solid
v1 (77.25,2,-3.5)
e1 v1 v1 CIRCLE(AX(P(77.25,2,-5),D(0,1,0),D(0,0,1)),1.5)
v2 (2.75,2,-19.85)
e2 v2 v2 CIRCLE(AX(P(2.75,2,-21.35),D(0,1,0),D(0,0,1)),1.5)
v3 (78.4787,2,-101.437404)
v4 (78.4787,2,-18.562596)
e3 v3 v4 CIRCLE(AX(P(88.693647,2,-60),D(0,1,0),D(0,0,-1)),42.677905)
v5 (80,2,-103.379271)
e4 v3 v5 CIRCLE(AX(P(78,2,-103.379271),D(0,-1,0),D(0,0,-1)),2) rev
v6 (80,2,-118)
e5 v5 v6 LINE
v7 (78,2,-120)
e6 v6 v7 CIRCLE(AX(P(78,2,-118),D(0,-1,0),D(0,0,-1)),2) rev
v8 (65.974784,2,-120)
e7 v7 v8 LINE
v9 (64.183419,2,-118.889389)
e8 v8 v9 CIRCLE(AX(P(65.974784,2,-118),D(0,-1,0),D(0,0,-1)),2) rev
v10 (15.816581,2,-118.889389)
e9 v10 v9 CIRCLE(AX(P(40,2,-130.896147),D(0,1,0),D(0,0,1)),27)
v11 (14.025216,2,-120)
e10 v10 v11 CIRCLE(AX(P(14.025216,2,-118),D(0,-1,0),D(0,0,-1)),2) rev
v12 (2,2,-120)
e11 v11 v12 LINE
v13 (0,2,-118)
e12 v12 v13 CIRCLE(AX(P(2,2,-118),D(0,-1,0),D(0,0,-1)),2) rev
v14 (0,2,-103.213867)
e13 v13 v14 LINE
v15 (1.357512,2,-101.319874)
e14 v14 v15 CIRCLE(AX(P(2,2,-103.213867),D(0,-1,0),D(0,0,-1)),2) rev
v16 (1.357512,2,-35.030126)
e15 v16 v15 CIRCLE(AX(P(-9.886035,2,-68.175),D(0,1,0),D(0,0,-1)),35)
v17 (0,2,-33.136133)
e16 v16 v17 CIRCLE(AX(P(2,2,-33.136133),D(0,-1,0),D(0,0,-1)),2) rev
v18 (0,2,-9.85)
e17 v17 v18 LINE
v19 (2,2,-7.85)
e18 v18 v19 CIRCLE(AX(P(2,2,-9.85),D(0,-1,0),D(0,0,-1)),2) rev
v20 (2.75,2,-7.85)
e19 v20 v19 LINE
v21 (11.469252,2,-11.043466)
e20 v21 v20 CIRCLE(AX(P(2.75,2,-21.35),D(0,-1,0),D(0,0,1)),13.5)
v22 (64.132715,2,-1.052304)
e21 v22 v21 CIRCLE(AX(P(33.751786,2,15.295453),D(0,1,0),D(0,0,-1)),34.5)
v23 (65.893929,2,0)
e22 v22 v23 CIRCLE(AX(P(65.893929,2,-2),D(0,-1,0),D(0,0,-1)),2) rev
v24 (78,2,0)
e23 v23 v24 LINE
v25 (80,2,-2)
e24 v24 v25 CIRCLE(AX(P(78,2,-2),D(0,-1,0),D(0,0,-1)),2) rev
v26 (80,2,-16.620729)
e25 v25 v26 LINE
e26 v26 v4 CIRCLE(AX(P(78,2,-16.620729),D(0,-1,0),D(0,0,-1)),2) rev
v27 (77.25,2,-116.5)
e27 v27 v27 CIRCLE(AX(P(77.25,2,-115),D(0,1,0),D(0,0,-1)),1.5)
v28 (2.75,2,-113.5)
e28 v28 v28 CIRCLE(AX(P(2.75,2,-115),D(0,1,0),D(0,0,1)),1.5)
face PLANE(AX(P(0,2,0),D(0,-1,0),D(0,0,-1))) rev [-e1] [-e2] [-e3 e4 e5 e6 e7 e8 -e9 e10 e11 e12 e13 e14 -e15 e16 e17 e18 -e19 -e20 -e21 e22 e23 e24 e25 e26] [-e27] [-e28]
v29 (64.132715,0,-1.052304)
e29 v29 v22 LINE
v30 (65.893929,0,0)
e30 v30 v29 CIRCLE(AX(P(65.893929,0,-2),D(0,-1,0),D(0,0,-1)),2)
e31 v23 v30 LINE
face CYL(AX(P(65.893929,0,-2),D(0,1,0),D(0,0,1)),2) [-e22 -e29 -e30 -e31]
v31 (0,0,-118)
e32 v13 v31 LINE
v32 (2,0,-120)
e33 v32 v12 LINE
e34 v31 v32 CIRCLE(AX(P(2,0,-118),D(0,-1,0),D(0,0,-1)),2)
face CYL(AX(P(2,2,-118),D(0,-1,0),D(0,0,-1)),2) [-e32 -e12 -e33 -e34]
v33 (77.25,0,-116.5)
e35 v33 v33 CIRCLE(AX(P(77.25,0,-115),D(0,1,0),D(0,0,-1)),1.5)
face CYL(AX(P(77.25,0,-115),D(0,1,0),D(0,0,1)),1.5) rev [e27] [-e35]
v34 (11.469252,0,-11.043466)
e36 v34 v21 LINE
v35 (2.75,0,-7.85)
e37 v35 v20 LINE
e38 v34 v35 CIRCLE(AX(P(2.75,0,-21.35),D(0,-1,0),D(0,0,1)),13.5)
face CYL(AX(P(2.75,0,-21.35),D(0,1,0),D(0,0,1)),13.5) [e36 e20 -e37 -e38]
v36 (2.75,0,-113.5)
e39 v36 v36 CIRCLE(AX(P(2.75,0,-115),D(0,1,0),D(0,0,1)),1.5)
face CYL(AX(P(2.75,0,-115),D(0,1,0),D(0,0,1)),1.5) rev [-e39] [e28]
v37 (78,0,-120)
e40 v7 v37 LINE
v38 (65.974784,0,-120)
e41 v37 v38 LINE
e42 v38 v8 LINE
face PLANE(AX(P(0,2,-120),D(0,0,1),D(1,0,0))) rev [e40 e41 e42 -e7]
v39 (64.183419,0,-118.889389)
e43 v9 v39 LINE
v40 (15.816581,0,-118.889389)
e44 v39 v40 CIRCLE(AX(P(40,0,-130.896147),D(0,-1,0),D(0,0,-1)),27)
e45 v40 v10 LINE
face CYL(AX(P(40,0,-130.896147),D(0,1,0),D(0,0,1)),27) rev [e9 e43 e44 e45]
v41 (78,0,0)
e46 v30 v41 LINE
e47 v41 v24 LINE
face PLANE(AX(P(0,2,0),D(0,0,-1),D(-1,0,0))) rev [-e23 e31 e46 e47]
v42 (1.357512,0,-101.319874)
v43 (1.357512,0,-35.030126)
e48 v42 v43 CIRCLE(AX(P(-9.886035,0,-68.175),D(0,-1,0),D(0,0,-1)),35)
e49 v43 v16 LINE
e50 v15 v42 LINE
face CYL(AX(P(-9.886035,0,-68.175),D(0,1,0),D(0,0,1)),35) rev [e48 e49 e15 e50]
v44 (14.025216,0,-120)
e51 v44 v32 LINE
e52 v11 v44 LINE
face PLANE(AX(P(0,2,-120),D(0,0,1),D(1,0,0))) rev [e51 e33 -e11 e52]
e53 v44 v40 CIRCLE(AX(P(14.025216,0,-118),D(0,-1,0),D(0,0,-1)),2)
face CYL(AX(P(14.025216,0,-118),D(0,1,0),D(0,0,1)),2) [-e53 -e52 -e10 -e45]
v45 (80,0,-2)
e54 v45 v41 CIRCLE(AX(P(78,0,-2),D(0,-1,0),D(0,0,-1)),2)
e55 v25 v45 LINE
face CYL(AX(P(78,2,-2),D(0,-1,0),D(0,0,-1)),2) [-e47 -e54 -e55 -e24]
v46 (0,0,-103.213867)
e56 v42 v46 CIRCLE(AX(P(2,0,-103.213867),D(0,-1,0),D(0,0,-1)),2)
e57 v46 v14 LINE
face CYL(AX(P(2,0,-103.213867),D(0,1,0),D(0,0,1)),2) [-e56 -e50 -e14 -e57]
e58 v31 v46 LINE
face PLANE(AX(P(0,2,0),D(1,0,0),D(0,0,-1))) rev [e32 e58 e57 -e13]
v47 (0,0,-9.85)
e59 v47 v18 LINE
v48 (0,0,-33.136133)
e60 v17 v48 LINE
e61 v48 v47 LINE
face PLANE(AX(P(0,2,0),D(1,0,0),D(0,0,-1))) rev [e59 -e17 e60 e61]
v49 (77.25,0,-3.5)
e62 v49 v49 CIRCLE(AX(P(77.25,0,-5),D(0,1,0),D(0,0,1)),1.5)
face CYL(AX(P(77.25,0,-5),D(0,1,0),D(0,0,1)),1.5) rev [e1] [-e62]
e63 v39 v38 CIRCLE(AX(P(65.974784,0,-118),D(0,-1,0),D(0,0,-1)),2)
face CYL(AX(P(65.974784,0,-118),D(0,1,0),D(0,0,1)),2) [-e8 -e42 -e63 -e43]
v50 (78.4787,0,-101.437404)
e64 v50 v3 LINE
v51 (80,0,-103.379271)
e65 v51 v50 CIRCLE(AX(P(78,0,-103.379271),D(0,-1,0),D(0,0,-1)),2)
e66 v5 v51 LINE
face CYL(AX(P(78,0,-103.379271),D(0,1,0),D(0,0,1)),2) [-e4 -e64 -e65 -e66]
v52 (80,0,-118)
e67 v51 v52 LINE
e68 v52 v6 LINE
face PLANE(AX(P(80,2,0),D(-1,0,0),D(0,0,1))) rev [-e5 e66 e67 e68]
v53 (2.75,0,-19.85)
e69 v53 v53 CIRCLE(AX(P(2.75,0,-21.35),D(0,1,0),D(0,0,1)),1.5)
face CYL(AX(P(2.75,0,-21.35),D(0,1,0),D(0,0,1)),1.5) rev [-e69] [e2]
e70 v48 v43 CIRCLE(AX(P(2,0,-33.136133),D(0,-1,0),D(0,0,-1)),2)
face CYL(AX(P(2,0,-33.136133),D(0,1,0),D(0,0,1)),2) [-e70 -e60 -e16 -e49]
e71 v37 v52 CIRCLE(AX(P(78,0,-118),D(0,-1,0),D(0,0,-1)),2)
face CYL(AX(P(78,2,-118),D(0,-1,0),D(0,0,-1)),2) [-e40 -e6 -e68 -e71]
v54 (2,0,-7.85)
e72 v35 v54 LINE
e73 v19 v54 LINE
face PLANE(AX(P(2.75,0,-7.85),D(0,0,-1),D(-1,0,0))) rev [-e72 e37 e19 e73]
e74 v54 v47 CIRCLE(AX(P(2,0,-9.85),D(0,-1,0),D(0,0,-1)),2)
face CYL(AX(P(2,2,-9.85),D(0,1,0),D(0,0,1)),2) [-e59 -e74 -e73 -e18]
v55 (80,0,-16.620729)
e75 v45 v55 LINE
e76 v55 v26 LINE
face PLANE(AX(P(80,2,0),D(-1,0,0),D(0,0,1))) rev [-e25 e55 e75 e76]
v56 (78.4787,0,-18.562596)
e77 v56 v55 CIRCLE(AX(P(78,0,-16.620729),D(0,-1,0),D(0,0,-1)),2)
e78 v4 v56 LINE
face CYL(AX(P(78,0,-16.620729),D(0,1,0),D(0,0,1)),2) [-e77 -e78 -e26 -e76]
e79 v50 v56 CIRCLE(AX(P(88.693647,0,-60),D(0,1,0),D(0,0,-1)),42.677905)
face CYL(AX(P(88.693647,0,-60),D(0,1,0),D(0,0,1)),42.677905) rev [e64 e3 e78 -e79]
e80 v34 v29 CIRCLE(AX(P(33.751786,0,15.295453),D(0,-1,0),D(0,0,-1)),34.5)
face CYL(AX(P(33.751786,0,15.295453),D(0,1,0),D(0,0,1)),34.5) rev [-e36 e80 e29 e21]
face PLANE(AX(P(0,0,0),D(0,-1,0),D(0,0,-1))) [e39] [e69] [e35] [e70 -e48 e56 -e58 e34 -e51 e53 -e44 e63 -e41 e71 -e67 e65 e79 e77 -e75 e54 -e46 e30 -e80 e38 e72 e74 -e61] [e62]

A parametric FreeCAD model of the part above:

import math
import FreeCAD as App
import Part
import Sketcher

V = App.Vector
Q = App.Units.Quantity


def edges_at(feature, points):
    """Names of the edges that pass closest to the given points."""
    edges = feature.Shape.Edges
    near = lambda p: min(range(len(edges)), key=lambda i: edges[i].distToShape(Part.Vertex(*p))[0])
    return sorted({f"Edge{near(p) + 1}" for p in points})

doc = App.newDocument("Part")
body = doc.addObject("PartDesign::Body", "Body")

# Sketch on XZ plane
sketch1 = body.newObject("Sketcher::SketchObject", "Sketch")
sketch1.AttachmentSupport = (doc.getObject("XZ_Plane"), [""])
sketch1.MapMode = "FlatFace"
sketch1.addGeometry([
    Part.LineSegment(V(0, -120, 0), V(0, 0, 0)),
    Part.LineSegment(V(0, 0, 0), V(80, 0, 0)),
    Part.LineSegment(V(80, 0, 0), V(80, -120, 0)),
    Part.LineSegment(V(80, -120, 0), V(0, -120, 0)),
], False)
sketch1.addConstraint([
    Sketcher.Constraint("Coincident", 0, 2, 1, 1),
    Sketcher.Constraint("Coincident", 1, 2, 2, 1),
    Sketcher.Constraint("Coincident", 2, 2, 3, 1),
    Sketcher.Constraint("Coincident", 3, 2, 0, 1),
    Sketcher.Constraint("Vertical", 0),
    Sketcher.Constraint("Horizontal", 1),
    Sketcher.Constraint("Vertical", 2),
    Sketcher.Constraint("Horizontal", 3),
    Sketcher.Constraint("Coincident", 0, 2, -1, 1),
    Sketcher.Constraint("DistanceX", 1, 1, 1, 2, Q("80 mm")),
    Sketcher.Constraint("DistanceY", 0, 1, 0, 2, Q("120 mm")),
])
pad1 = body.newObject("PartDesign::Pad", "Pad")
pad1.Profile = sketch1
pad1.Length = 2
pad1.Reversed = True

# Sketch on XZ plane
sketch2 = body.newObject("Sketcher::SketchObject", "Sketch001")
sketch2.AttachmentSupport = (doc.getObject("XZ_Plane"), [""])
sketch2.MapMode = "FlatFace"
sketch2.AttachmentOffset = App.Placement(V(0, 0, -2), App.Rotation())
sketch2.addGeometry([
    Part.Circle(V(2.8, -115, 0), V(0, 0, 1), 1.5),
    Part.Circle(V(77.2, -115, 0), V(0, 0, 1), 1.5),
    Part.Circle(V(77.2, -5, 0), V(0, 0, 1), 1.5),
    Part.Circle(V(2.8, -21.4, 0), V(0, 0, 1), 1.5),
], False)
sketch2.addConstraint([
    Sketcher.Constraint("Equal", 0, 1),
    Sketcher.Constraint("Equal", 1, 2),
    Sketcher.Constraint("Equal", 2, 3),
    Sketcher.Constraint("Horizontal", 0, 3, 1, 3),
    Sketcher.Constraint("Vertical", 1, 3, 2, 3),
    Sketcher.Constraint("Vertical", 0, 3, 3, 3),
    Sketcher.Constraint("Diameter", 0, Q("3 mm")),
    Sketcher.Constraint("DistanceY", 0, 3, -1, 1, Q("115 mm")),
    Sketcher.Constraint("DistanceY", 2, 3, -1, 1, Q("5 mm")),
    Sketcher.Constraint("DistanceX", 0, 3, 1, 3, Q("74.5 mm")),
    Sketcher.Constraint("DistanceX", -1, 1, 0, 3, Q("2.75 mm")),
    Sketcher.Constraint("DistanceY", 3, 3, -1, 1, Q("21.35 mm")),
])
pocket1 = body.newObject("PartDesign::Pocket", "Pocket")
pocket1.Profile = sketch2
pocket1.Type = "ThroughAll"
pocket1.Reversed = True

# Sketch on XZ plane
sketch3 = body.newObject("Sketcher::SketchObject", "Sketch002")
sketch3.AttachmentSupport = (doc.getObject("XZ_Plane"), [""])
sketch3.MapMode = "FlatFace"
sketch3.AttachmentOffset = App.Placement(V(0, 0, -2), App.Rotation())
sketch3.addGeometry([
    Part.LineSegment(V(77, -128, 0), V(3, -128, 0)),  # 0
    Part.ArcOfCircle(Part.Circle(V(3, -115, 0), V(0, 0, 1), 14), math.radians(-90), math.radians(-23)),  # 1
    Part.ArcOfCircle(Part.Circle(V(40, -131, 0), V(0, 0, 1), 27), math.radians(23), math.radians(157)),  # 2
    Part.ArcOfCircle(Part.Circle(V(77, -115, 0), V(0, 0, 1), 14), math.radians(-157), math.radians(-90)),  # 3
    Part.LineSegment(V(-11, -115, 0), V(-11, -21, 0)),  # 4
    Part.ArcOfCircle(Part.Circle(V(3, -21, 0), V(0, 0, 1), 14), math.radians(180), math.radians(255)),  # 5
    Part.ArcOfCircle(Part.Circle(V(-10, -68, 0), V(0, 0, 1), 35), math.radians(-75), math.radians(75)),  # 6
    Part.ArcOfCircle(Part.Circle(V(3, -115, 0), V(0, 0, 1), 14), math.radians(105), math.radians(180)),  # 7
    Part.LineSegment(V(-11, -8, 0), V(-11, 8, 0)),  # 8
    Part.LineSegment(V(-11, 8, 0), V(77, 8, 0)),  # 9
    Part.ArcOfCircle(Part.Circle(V(77, -5, 0), V(0, 0, 1), 14), math.radians(90), math.radians(155)),  # 10
    Part.ArcOfCircle(Part.Circle(V(34, 15, 0), V(0, 0, 1), 35), math.radians(-130), math.radians(-25)),  # 11
    Part.ArcOfCircle(Part.Circle(V(3, -21, 0), V(0, 0, 1), 13), math.radians(50), math.radians(90)),  # 12
    Part.LineSegment(V(3, -8, 0), V(-11, -8, 0)),  # 13
    Part.LineSegment(V(91, -5, 0), V(91, -115, 0)),  # 14
    Part.ArcOfCircle(Part.Circle(V(77, -115, 0), V(0, 0, 1), 13), math.radians(0), math.radians(78)),  # 15
    Part.ArcOfCircle(Part.Circle(V(89, -60, 0), V(0, 0, 1), 43), math.radians(102), math.radians(258)),  # 16
    Part.ArcOfCircle(Part.Circle(V(77, -5, 0), V(0, 0, 1), 13), math.radians(-78), math.radians(0)),  # 17
], False)
sketch3.addConstraint([
    Sketcher.Constraint("Tangent", 0, 2, 1, 1),
    Sketcher.Constraint("Tangent", 1, 2, 2, 2),
    Sketcher.Constraint("Tangent", 2, 1, 3, 1),
    Sketcher.Constraint("Tangent", 3, 2, 0, 1),
    Sketcher.Constraint("Tangent", 4, 2, 5, 1),
    Sketcher.Constraint("Tangent", 5, 2, 6, 2),
    Sketcher.Constraint("Tangent", 6, 1, 7, 1),
    Sketcher.Constraint("Tangent", 7, 2, 4, 1),
    Sketcher.Constraint("Coincident", 8, 2, 9, 1),
    Sketcher.Constraint("Tangent", 9, 2, 10, 1),
    Sketcher.Constraint("Tangent", 10, 2, 11, 2),
    Sketcher.Constraint("Tangent", 11, 1, 12, 1),
    Sketcher.Constraint("Tangent", 12, 2, 13, 1),
    Sketcher.Constraint("Coincident", 13, 2, 8, 1),
    Sketcher.Constraint("Tangent", 14, 2, 15, 1),
    Sketcher.Constraint("Tangent", 15, 2, 16, 2),
    Sketcher.Constraint("Tangent", 16, 1, 17, 1),
    Sketcher.Constraint("Tangent", 17, 2, 14, 1),
    Sketcher.Constraint("Horizontal", 0),
    Sketcher.Constraint("Vertical", 4),
    Sketcher.Constraint("Vertical", 8),
    Sketcher.Constraint("Horizontal", 9),
    Sketcher.Constraint("Horizontal", 13),
    Sketcher.Constraint("Vertical", 14),
    Sketcher.Constraint("Coincident", 7, 3, 1, 3),
    Sketcher.Constraint("Coincident", 12, 3, 5, 3),
    Sketcher.Constraint("Coincident", 15, 3, 3, 3),
    Sketcher.Constraint("Coincident", 17, 3, 10, 3),
    Sketcher.Constraint("Equal", 1, 3),
    Sketcher.Constraint("Equal", 3, 5),
    Sketcher.Constraint("Equal", 5, 7),
    Sketcher.Constraint("Equal", 7, 10),
    Sketcher.Constraint("Equal", 10, 12),
    Sketcher.Constraint("Equal", 12, 15),
    Sketcher.Constraint("Equal", 15, 17),
    Sketcher.Constraint("Vertical", 7, 2, 8, 2),
    Sketcher.Constraint("Radius", 2, Q("27 mm")),
    Sketcher.Constraint("Radius", 6, Q("35 mm")),
    Sketcher.Constraint("Radius", 1, Q("13.5 mm")),
    Sketcher.Constraint("Radius", 11, Q("34.5 mm")),
    Sketcher.Constraint("DistanceX", 9, 1, 9, 2, Q("88 mm")),
    Sketcher.Constraint("DistanceY", 14, 2, 14, 1, Q("110 mm")),
    Sketcher.Constraint("DistanceY", 1, 3, -1, 1, Q("115 mm")),
    Sketcher.Constraint("DistanceX", -1, 1, 2, 3, Q("40 mm")),
    Sketcher.Constraint("DistanceX", -1, 1, 15, 2, Q("80 mm")),
    Sketcher.Constraint("DistanceY", 4, 1, 4, 2, Q("93.65 mm")),
])
pocket2 = body.newObject("PartDesign::Pocket", "Pocket001")
pocket2.Profile = sketch3
pocket2.Type = "ThroughAll"
pocket2.Reversed = True
doc.recompute()

fillet = body.newObject("PartDesign::Fillet", "Fillet")
fillet.Base = (pocket2, edges_at(pocket2, [
    (0, 1, -101.75),
    (0, 1, -34.6),
    (64.676, 1, 0),
    (0, 1, -7.85),
    (80, 1, -18.217),
    (80, 1, -101.783),
    (0, 1, -120),
    (80, 1, -120),
    (64.704, 1, -120),
    (80, 1, 0),
    (15.296, 1, -120),
]))
fillet.Radius = 2

doc.recompute()
